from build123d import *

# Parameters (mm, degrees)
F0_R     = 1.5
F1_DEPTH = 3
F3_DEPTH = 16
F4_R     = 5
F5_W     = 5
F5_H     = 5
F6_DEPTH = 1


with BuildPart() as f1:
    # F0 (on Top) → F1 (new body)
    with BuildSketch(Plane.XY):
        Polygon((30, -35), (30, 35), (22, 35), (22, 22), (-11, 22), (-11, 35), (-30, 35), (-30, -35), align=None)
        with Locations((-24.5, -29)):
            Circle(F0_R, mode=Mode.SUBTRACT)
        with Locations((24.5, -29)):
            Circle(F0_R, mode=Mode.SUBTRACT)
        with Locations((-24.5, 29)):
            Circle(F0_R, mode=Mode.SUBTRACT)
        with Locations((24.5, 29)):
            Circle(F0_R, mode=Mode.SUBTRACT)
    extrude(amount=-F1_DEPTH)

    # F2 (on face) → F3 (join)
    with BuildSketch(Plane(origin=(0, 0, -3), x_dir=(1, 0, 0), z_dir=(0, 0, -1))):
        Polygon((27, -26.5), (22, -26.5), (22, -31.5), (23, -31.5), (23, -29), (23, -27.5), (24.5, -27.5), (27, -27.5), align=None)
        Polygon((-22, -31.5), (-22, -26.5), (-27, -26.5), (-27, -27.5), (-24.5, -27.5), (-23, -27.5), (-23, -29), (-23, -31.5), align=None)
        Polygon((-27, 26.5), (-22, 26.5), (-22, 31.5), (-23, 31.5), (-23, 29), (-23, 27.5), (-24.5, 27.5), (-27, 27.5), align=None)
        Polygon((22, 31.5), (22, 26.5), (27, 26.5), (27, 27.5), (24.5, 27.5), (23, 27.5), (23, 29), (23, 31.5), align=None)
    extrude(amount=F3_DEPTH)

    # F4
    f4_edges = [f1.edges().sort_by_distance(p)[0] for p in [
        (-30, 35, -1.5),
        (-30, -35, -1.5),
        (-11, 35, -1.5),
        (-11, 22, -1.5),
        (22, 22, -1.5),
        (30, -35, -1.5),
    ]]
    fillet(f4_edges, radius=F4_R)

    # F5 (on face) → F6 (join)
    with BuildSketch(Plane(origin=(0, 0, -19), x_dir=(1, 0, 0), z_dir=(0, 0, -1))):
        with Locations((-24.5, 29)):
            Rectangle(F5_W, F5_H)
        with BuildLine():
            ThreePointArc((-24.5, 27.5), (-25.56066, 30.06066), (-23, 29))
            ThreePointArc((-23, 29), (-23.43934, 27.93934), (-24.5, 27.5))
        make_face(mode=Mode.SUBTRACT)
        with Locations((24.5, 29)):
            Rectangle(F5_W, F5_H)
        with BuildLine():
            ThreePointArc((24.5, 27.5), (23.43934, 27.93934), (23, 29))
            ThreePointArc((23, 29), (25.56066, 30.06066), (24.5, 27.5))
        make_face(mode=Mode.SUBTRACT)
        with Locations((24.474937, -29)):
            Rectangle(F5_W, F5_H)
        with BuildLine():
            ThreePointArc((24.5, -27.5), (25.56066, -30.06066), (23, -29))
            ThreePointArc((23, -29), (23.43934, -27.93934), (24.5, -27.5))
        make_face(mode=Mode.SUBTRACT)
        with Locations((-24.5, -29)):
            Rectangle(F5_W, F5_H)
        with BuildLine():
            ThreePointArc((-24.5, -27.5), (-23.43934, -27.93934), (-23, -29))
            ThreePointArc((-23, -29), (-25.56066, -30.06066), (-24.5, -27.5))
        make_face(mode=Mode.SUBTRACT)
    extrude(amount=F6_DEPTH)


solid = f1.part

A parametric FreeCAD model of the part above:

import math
import FreeCAD as App
import Part
import Sketcher

V = App.Vector


def edges_at(feature, points):
    """Names of the edges that pass closest to the given points."""
    edges = feature.Shape.Edges
    near = lambda p: min(range(len(edges)), key=lambda i: edges[i].distToShape(Part.Vertex(*p))[0])
    return sorted({f"Edge{near(p) + 1}" for p in points})


def add_polygon(sketch, points):
    """Adds a closed chain of lines whose ends are joined by coincident constraints."""
    first, n = sketch.GeometryCount, len(points)
    for a, b in zip(points, points[1:] + points[:1]):
        sketch.addGeometry(Part.LineSegment(App.Vector(*a, 0), App.Vector(*b, 0)), False)
    for i in range(n):
        sketch.addConstraint(Sketcher.Constraint("Coincident", first + i, 2, first + (i + 1) % n, 1))

doc = App.newDocument("Part")
body = doc.addObject("PartDesign::Body", "Body")

# Sketch on XY plane
sketch1 = body.newObject("Sketcher::SketchObject", "Sketch")
sketch1.AttachmentSupport = (doc.getObject("XY_Plane"), [""])
sketch1.MapMode = "FlatFace"
add_polygon(sketch1, [(30, -35), (30, 35), (22, 35), (22, 22), (-11, 22), (-11, 35), (-30, 35), (-30, -35)])  # lines 0-7
sketch1.addGeometry(Part.Circle(V(-24.5, -29, 0), V(0, 0, 1), 1.5), False)  # 8
sketch1.addGeometry(Part.Circle(V(24.5, -29, 0), V(0, 0, 1), 1.5), False)  # 9
sketch1.addGeometry(Part.Circle(V(-24.5, 29, 0), V(0, 0, 1), 1.5), False)  # 10
sketch1.addGeometry(Part.Circle(V(24.5, 29, 0), V(0, 0, 1), 1.5), False)  # 11
sketch1.addConstraint([
    Sketcher.Constraint("Vertical", 0),
    Sketcher.Constraint("Horizontal", 1),
    Sketcher.Constraint("Vertical", 2),
    Sketcher.Constraint("Horizontal", 3),
    Sketcher.Constraint("Vertical", 4),
    Sketcher.Constraint("Horizontal", 5),
    Sketcher.Constraint("Vertical", 6),
    Sketcher.Constraint("Horizontal", 7),
    Sketcher.Constraint("Equal", 8, 9),
    Sketcher.Constraint("Equal", 9, 10),
    Sketcher.Constraint("Equal", 10, 11),
    Sketcher.Constraint("Symmetric", 9, 3, 10, 3, -1, 1),
    Sketcher.Constraint("Symmetric", 8, 3, 11, 3, -1, 1),
    Sketcher.Constraint("Symmetric", 0, 2, 6, 2, -1, 1),
    Sketcher.Constraint("Symmetric", 8, 3, 9, 3, -2),
    Sketcher.Constraint("Horizontal", 1, 2, 4, 2),
    Sketcher.Constraint("Diameter", 8, 3.0),
    Sketcher.Constraint("DistanceX", 1, 2, 1, 1, 8.0),
    Sketcher.Constraint("DistanceX", 3, 2, 3, 1, 33.0),
    Sketcher.Constraint("DistanceX", 5, 2, 5, 1, 19.0),
    Sketcher.Constraint("DistanceY", 0, 1, 0, 2, 70.0),
    Sketcher.Constraint("DistanceY", 2, 2, 2, 1, 13.0),
    Sketcher.Constraint("DistanceY", 8, 3, -1, 1, 29.0),
    Sketcher.Constraint("DistanceX", 8, 3, 9, 3, 49.0),
])
pad1 = body.newObject("PartDesign::Pad", "Pad")
pad1.Profile = sketch1
pad1.Length = 3
pad1.Reversed = True

# Sketch on XY plane
sketch2 = body.newObject("Sketcher::SketchObject", "Sketch001")
sketch2.AttachmentSupport = (doc.getObject("XY_Plane"), [""])
sketch2.MapMode = "FlatFace"
sketch2.AttachmentOffset = App.Placement(V(0, 0, -3), App.Rotation())
add_polygon(sketch2, [(27, 26.5), (22, 26.5), (22, 31.5), (23, 31.5), (23, 27.5), (27, 27.5)])  # lines 0-5
add_polygon(sketch2, [(-22, 31.5), (-22, 26.5), (-27, 26.5), (-27, 27.5), (-23, 27.5), (-23, 31.5)])  # lines 6-11
add_polygon(sketch2, [(-27, -26.5), (-22, -26.5), (-22, -31.5), (-23, -31.5), (-23, -27.5), (-27, -27.5)])  # lines 12-17
add_polygon(sketch2, [(22, -31.5), (22, -26.5), (27, -26.5), (27, -27.5), (23, -27.5), (23, -31.5)])  # lines 18-23
sketch2.addConstraint([
    Sketcher.Constraint("Horizontal", 0),
    Sketcher.Constraint("Vertical", 1),
    Sketcher.Constraint("Horizontal", 2),
    Sketcher.Constraint("Vertical", 3),
    Sketcher.Constraint("Horizontal", 4),
    Sketcher.Constraint("Vertical", 5),
    Sketcher.Constraint("Vertical", 6),
    Sketcher.Constraint("Horizontal", 7),
    Sketcher.Constraint("Vertical", 8),
    Sketcher.Constraint("Horizontal", 9),
    Sketcher.Constraint("Vertical", 10),
    Sketcher.Constraint("Horizontal", 11),
    Sketcher.Constraint("Horizontal", 12),
    Sketcher.Constraint("Vertical", 13),
    Sketcher.Constraint("Horizontal", 14),
    Sketcher.Constraint("Vertical", 15),
    Sketcher.Constraint("Horizontal", 16),
    Sketcher.Constraint("Vertical", 17),
    Sketcher.Constraint("Vertical", 18),
    Sketcher.Constraint("Horizontal", 19),
    Sketcher.Constraint("Vertical", 20),
    Sketcher.Constraint("Horizontal", 21),
    Sketcher.Constraint("Vertical", 22),
    Sketcher.Constraint("Horizontal", 23),
    Sketcher.Constraint("Symmetric", 0, 2, 12, 2, -1, 1),
    Sketcher.Constraint("Symmetric", 2, 2, 14, 2, -1, 1),
    Sketcher.Constraint("Symmetric", 4, 2, 16, 2, -1, 1),
    Sketcher.Constraint("Symmetric", 6, 2, 18, 2, -1, 1),
    Sketcher.Constraint("Symmetric", 8, 2, 20, 2, -1, 1),
    Sketcher.Constraint("Symmetric", 10, 2, 22, 2, -1, 1),
    Sketcher.Constraint("Symmetric", 0, 2, 6, 2, -2),
    Sketcher.Constraint("Symmetric", 4, 2, 8, 2, -2),
    Sketcher.Constraint("Symmetric", 2, 2, 10, 2, -2),
    Sketcher.Constraint("Equal", 19, 1),
    Sketcher.Constraint("Equal", 21, 3),
    Sketcher.Constraint("DistanceX", 0, 2, 0, 1, 5.0),
    Sketcher.Constraint("DistanceX", 2, 1, 2, 2, 1.0),
    Sketcher.Constraint("DistanceX", -1, 1, 0, 2, 22.0),
    Sketcher.Constraint("DistanceY", 12, 2, 6, 2, 53.0),
])
pad2 = body.newObject("PartDesign::Pad", "Pad001")
pad2.Profile = sketch2
pad2.Length = 16
pad2.Reversed = True
doc.recompute()

fillet = body.newObject("PartDesign::Fillet", "Fillet")
fillet.Base = (pad2, edges_at(pad2, [
    (-30, 35, -1.5),
    (-30, -35, -1.5),
    (-11, 35, -1.5),
    (-11, 22, -1.5),
    (22, 22, -1.5),
    (30, -35, -1.5),
]))
fillet.Radius = 5

# Sketch on XY plane
sketch3 = body.newObject("Sketcher::SketchObject", "Sketch002")
sketch3.AttachmentSupport = (doc.getObject("XY_Plane"), [""])
sketch3.MapMode = "FlatFace"
sketch3.AttachmentOffset = App.Placement(V(0, 0, -19), App.Rotation())
add_polygon(sketch3, [(-27, -31.5), (-27, -26.5), (-22, -26.5), (-22, -31.5)])  # lines 0-3
sketch3.addGeometry(Part.ArcOfCircle(Part.Circle(V(-24.5, -29, 0), V(0, 0, 1), 1.5), math.radians(0), math.radians(90)), False)  # 4
sketch3.addGeometry(Part.ArcOfCircle(Part.Circle(V(-24.5, -29, 0), V(0, 0, 1), 1.5), math.radians(90), math.radians(360)), False)  # 5
add_polygon(sketch3, [(22, -31.5), (22, -26.5), (27, -26.5), (27, -31.5)])  # lines 6-9
sketch3.addGeometry(Part.ArcOfCircle(Part.Circle(V(24.5, -29, 0), V(0, 0, 1), 1.5), math.radians(-180), math.radians(90)), False)  # 10
sketch3.addGeometry(Part.ArcOfCircle(Part.Circle(V(24.5, -29, 0), V(0, 0, 1), 1.5), math.radians(90), math.radians(180)), False)  # 11
add_polygon(sketch3, [(22, 26.5), (22, 31.5), (27, 31.5), (27, 26.5)])  # lines 12-15
sketch3.addGeometry(Part.ArcOfCircle(Part.Circle(V(24.5, 29, 0), V(0, 0, 1), 1.5), math.radians(-180), math.radians(-90)), False)  # 16
sketch3.addGeometry(Part.ArcOfCircle(Part.Circle(V(24.5, 29, 0), V(0, 0, 1), 1.5), math.radians(-90), math.radians(180)), False)  # 17
add_polygon(sketch3, [(-27, 26.5), (-27, 31.5), (-22, 31.5), (-22, 26.5)])  # lines 18-21
sketch3.addGeometry(Part.ArcOfCircle(Part.Circle(V(-24.5, 29, 0), V(0, 0, 1), 1.5), math.radians(0), math.radians(270)), False)  # 22
sketch3.addGeometry(Part.ArcOfCircle(Part.Circle(V(-24.5, 29, 0), V(0, 0, 1), 1.5), math.radians(-90), math.radians(0)), False)  # 23
sketch3.addConstraint([
    Sketcher.Constraint("Tangent", 4, 1, 5, 2),
    Sketcher.Constraint("Coincident", 5, 1, 4, 2),
    Sketcher.Constraint("Tangent", 10, 1, 11, 2),
    Sketcher.Constraint("Coincident", 11, 1, 10, 2),
    Sketcher.Constraint("Tangent", 16, 1, 17, 2),
    Sketcher.Constraint("Coincident", 17, 1, 16, 2),
    Sketcher.Constraint("Tangent", 22, 1, 23, 2),
    Sketcher.Constraint("Coincident", 23, 1, 22, 2),
    Sketcher.Constraint("Vertical", 0),
    Sketcher.Constraint("Horizontal", 1),
    Sketcher.Constraint("Vertical", 2),
    Sketcher.Constraint("Horizontal", 3),
    Sketcher.Constraint("Vertical", 6),
    Sketcher.Constraint("Horizontal", 7),
    Sketcher.Constraint("Vertical", 8),
    Sketcher.Constraint("Horizontal", 9),
    Sketcher.Constraint("Vertical", 12),
    Sketcher.Constraint("Horizontal", 13),
    Sketcher.Constraint("Vertical", 14),
    Sketcher.Constraint("Horizontal", 15),
    Sketcher.Constraint("Vertical", 18),
    Sketcher.Constraint("Horizontal", 19),
    Sketcher.Constraint("Vertical", 20),
    Sketcher.Constraint("Horizontal", 21),
    Sketcher.Constraint("Equal", 5, 10),
    Sketcher.Constraint("Equal", 11, 16),
    Sketcher.Constraint("Equal", 17, 22),
    Sketcher.Constraint("Symmetric", 4, 3, 16, 3, -1, 1),
    Sketcher.Constraint("Symmetric", 10, 3, 22, 3, -1, 1),
    Sketcher.Constraint("Symmetric", 8, 2, 18, 2, -1, 1),
    Sketcher.Constraint("Symmetric", 6, 2, 20, 2, -1, 1),
    Sketcher.Constraint("Symmetric", 4, 3, 10, 3, -2),
    Sketcher.Constraint("Symmetric", 1, 2, 6, 2, -2),
    Sketcher.Constraint("Symmetric", 3, 2, 8, 2, -2),
    Sketcher.Constraint("Horizontal", 11, 3, 4, 1),
    Sketcher.Constraint("Horizontal", 4, 1, 10, 1),
    Sketcher.Constraint("Horizontal", 23, 3, 16, 1),
    Sketcher.Constraint("Horizontal", 13, 2, 18, 2),
    Sketcher.Constraint("Horizontal", 15, 2, 20, 2),
    Sketcher.Constraint("Horizontal", 16, 1, 22, 1),
    Sketcher.Constraint("Vertical", 23, 3, 5, 1),
    Sketcher.Constraint("Vertical", 17, 3, 11, 1),
    Sketcher.Constraint("Vertical", 11, 1, 17, 1),
    Sketcher.Constraint("Vertical", 5, 1, 23, 1),
    Sketcher.Constraint("Equal", 9, 13),
    Sketcher.Constraint("Equal", 21, 0),
    Sketcher.Constraint("Radius", 4, 1.500001),
    Sketcher.Constraint("DistanceX", 1, 1, 1, 2, 5.0),
    Sketcher.Constraint("DistanceY", 4, 3, -1, 1, 29.000001),
    Sketcher.Constraint("DistanceX", 0, 2, -1, 1, 27.0),
    Sketcher.Constraint("DistanceX", 4, 1, -1, 1, 23.0),
    Sketcher.Constraint("DistanceY", 5, 1, 0, 2, 1.0),
    Sketcher.Constraint("DistanceX", -1, 1, 12, 2, 21.974937),
])
pad3 = body.newObject("PartDesign::Pad", "Pad002")
pad3.Profile = sketch3
pad3.Length = 1
pad3.Reversed = True

doc.recompute()
